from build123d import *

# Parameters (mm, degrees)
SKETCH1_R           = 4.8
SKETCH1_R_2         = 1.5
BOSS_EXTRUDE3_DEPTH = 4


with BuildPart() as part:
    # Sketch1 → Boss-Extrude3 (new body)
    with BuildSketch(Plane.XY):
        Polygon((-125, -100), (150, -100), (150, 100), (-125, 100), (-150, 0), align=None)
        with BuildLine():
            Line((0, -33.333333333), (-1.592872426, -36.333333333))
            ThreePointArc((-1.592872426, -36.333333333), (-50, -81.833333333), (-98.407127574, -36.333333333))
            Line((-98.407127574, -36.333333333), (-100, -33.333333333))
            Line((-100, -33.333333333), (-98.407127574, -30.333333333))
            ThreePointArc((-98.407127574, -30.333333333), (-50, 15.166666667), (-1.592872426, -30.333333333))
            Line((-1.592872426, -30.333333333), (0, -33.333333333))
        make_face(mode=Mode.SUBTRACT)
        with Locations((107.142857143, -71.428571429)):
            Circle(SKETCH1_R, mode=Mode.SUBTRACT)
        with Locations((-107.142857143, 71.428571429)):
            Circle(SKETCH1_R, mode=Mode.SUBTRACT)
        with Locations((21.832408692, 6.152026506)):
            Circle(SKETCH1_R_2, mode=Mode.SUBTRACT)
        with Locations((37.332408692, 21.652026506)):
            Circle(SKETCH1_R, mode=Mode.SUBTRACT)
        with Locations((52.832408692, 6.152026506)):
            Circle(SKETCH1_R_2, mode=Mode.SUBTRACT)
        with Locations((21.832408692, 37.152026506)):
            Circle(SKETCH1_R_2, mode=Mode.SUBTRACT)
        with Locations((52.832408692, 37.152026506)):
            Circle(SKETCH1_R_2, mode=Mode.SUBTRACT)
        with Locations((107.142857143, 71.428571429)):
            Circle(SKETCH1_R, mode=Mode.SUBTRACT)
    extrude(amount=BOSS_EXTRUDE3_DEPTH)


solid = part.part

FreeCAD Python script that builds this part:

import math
import FreeCAD as App
import Part
import Sketcher

V = App.Vector

doc = App.newDocument("Part")
body = doc.addObject("PartDesign::Body", "Body")

# Sketch on XY plane
sketch1 = body.newObject("Sketcher::SketchObject", "Sketch")
sketch1.AttachmentSupport = (doc.getObject("XY_Plane"), [""])
sketch1.MapMode = "FlatFace"
sketch1.addGeometry([
    Part.LineSegment(V(-125, -100, 0), V(150, -100, 0)),  # 0
    Part.LineSegment(V(150, -100, 0), V(150, 100, 0)),  # 1
    Part.LineSegment(V(150, 100, 0), V(-125, 100, 0)),  # 2
    Part.LineSegment(V(-125, 100, 0), V(-150, 0, 0)),  # 3
    Part.LineSegment(V(-150, 0, 0), V(-125, -100, 0)),  # 4
    Part.LineSegment(V(-1.6, -30.3, 0), V(0, -33.3, 0)),  # 5
    Part.LineSegment(V(0, -33.3, 0), V(-1.6, -36.3, 0)),  # 6
    Part.ArcOfCircle(Part.Circle(V(-50, -33.3, 0), V(0, 0, 1), 48.5), math.radians(-176), math.radians(-4)),  # 7
    Part.LineSegment(V(-98.4, -36.3, 0), V(-100, -33.3, 0)),  # 8
    Part.LineSegment(V(-100, -33.3, 0), V(-98.4, -30.3, 0)),  # 9
    Part.ArcOfCircle(Part.Circle(V(-50, -33.3, 0), V(0, 0, 1), 48.5), math.radians(4), math.radians(176)),  # 10
    Part.Circle(V(107.1, -71.4, 0), V(0, 0, 1), 4.8),  # 11
    Part.Circle(V(-107.1, 71.4, 0), V(0, 0, 1), 4.8),  # 12
    Part.Circle(V(21.8, 6.2, 0), V(0, 0, 1), 1.5),  # 13
    Part.Circle(V(52.8, 6.2, 0), V(0, 0, 1), 1.5),  # 14
    Part.Circle(V(37.3, 21.7, 0), V(0, 0, 1), 4.8),  # 15
    Part.Circle(V(21.8, 37.2, 0), V(0, 0, 1), 1.5),  # 16
    Part.Circle(V(52.8, 37.2, 0), V(0, 0, 1), 1.5),  # 17
    Part.Circle(V(107.1, 71.4, 0), V(0, 0, 1), 4.8),  # 18
], False)
sketch1.addConstraint([
    Sketcher.Constraint("Coincident", 0, 2, 1, 1),
    Sketcher.Constraint("Coincident", 1, 2, 2, 1),
    Sketcher.Constraint("Coincident", 2, 2, 3, 1),
    Sketcher.Constraint("Coincident", 3, 2, 4, 1),
    Sketcher.Constraint("Coincident", 4, 2, 0, 1),
    Sketcher.Constraint("Coincident", 5, 2, 6, 1),
    Sketcher.Constraint("Coincident", 6, 2, 7, 2),
    Sketcher.Constraint("Coincident", 7, 1, 8, 1),
    Sketcher.Constraint("Coincident", 8, 2, 9, 1),
    Sketcher.Constraint("Coincident", 9, 2, 10, 2),
    Sketcher.Constraint("Coincident", 10, 1, 5, 1),
    Sketcher.Constraint("Horizontal", 0),
    Sketcher.Constraint("Vertical", 1),
    Sketcher.Constraint("Horizontal", 2),
    Sketcher.Constraint("Coincident", 10, 3, 7, 3),
    Sketcher.Constraint("Equal", 7, 10),
    Sketcher.Constraint("Equal", 11, 12),
    Sketcher.Constraint("Equal", 13, 14),
    Sketcher.Constraint("Equal", 12, 15),
    Sketcher.Constraint("Equal", 14, 16),
    Sketcher.Constraint("Equal", 16, 17),
    Sketcher.Constraint("Equal", 15, 18),
    Sketcher.Constraint("Symmetric", 11, 3, 12, 3, -1, 1),
    Sketcher.Constraint("Symmetric", 12, 3, 18, 3, -2),
    Sketcher.Constraint("Symmetric", 2, 2, 4, 2, -1),
    Sketcher.Constraint("PointOnObject", 3, 2, -1),
    Sketcher.Constraint("PointOnObject", 5, 2, -2),
    Sketcher.Constraint("Parallel", 5, 8),
    Sketcher.Constraint("Parallel", 6, 9),
    Sketcher.Constraint("Horizontal", 13, 3, 14, 3),
    Sketcher.Constraint("Horizontal", 16, 3, 17, 3),
    Sketcher.Constraint("Horizontal", 10, 3, 5, 2),
    Sketcher.Constraint("Horizontal", 6, 2, 7, 1),
    Sketcher.Constraint("Horizontal", 5, 2, 8, 2),
    Sketcher.Constraint("Horizontal", 9, 2, 10, 1),
    Sketcher.Constraint("Vertical", 13, 3, 16, 3),
    Sketcher.Constraint("Vertical", 14, 3, 17, 3),
    Sketcher.Constraint("Diameter", 13, 3.0),
    Sketcher.Constraint("Diameter", 11, 9.6),
    Sketcher.Constraint("Radius", 7, 48.5),
    Sketcher.Constraint("DistanceX", 0, 1, 0, 2, 275.0),
    Sketcher.Constraint("DistanceY", 1, 1, 1, 2, 200.0),
    Sketcher.Constraint("DistanceX", 7, 3, -1, 1, 50.0),
    Sketcher.Constraint("DistanceX", -1, 1, 0, 2, 150.0),
    Sketcher.Constraint("DistanceX", 3, 2, -1, 1, 150.0),
    Sketcher.Constraint("DistanceX", 13, 3, 14, 3, 31.0),
    Sketcher.Constraint("DistanceY", 13, 3, 16, 3, 31.0),
    Sketcher.Constraint("DistanceY", 6, 2, 5, 2, 3.0),
    Sketcher.Constraint("DistanceX", 13, 3, 15, 3, 15.5),
    Sketcher.Constraint("DistanceY", 13, 3, 15, 3, 15.5),
    Sketcher.Constraint("DistanceY", 11, 3, -1, 1, 71.428571),
    Sketcher.Constraint("DistanceX", -1, 1, 13, 3, 21.832409),
    Sketcher.Constraint("DistanceY", 11, 3, 7, 3, 38.095238),
    Sketcher.Constraint("DistanceY", 7, 3, 13, 3, 39.48536),
    Sketcher.Constraint("DistanceX", 13, 3, 11, 3, 85.310448),
])
pad1 = body.newObject("PartDesign::Pad", "Pad")
pad1.Profile = sketch1
pad1.Length = 4

doc.recompute()
